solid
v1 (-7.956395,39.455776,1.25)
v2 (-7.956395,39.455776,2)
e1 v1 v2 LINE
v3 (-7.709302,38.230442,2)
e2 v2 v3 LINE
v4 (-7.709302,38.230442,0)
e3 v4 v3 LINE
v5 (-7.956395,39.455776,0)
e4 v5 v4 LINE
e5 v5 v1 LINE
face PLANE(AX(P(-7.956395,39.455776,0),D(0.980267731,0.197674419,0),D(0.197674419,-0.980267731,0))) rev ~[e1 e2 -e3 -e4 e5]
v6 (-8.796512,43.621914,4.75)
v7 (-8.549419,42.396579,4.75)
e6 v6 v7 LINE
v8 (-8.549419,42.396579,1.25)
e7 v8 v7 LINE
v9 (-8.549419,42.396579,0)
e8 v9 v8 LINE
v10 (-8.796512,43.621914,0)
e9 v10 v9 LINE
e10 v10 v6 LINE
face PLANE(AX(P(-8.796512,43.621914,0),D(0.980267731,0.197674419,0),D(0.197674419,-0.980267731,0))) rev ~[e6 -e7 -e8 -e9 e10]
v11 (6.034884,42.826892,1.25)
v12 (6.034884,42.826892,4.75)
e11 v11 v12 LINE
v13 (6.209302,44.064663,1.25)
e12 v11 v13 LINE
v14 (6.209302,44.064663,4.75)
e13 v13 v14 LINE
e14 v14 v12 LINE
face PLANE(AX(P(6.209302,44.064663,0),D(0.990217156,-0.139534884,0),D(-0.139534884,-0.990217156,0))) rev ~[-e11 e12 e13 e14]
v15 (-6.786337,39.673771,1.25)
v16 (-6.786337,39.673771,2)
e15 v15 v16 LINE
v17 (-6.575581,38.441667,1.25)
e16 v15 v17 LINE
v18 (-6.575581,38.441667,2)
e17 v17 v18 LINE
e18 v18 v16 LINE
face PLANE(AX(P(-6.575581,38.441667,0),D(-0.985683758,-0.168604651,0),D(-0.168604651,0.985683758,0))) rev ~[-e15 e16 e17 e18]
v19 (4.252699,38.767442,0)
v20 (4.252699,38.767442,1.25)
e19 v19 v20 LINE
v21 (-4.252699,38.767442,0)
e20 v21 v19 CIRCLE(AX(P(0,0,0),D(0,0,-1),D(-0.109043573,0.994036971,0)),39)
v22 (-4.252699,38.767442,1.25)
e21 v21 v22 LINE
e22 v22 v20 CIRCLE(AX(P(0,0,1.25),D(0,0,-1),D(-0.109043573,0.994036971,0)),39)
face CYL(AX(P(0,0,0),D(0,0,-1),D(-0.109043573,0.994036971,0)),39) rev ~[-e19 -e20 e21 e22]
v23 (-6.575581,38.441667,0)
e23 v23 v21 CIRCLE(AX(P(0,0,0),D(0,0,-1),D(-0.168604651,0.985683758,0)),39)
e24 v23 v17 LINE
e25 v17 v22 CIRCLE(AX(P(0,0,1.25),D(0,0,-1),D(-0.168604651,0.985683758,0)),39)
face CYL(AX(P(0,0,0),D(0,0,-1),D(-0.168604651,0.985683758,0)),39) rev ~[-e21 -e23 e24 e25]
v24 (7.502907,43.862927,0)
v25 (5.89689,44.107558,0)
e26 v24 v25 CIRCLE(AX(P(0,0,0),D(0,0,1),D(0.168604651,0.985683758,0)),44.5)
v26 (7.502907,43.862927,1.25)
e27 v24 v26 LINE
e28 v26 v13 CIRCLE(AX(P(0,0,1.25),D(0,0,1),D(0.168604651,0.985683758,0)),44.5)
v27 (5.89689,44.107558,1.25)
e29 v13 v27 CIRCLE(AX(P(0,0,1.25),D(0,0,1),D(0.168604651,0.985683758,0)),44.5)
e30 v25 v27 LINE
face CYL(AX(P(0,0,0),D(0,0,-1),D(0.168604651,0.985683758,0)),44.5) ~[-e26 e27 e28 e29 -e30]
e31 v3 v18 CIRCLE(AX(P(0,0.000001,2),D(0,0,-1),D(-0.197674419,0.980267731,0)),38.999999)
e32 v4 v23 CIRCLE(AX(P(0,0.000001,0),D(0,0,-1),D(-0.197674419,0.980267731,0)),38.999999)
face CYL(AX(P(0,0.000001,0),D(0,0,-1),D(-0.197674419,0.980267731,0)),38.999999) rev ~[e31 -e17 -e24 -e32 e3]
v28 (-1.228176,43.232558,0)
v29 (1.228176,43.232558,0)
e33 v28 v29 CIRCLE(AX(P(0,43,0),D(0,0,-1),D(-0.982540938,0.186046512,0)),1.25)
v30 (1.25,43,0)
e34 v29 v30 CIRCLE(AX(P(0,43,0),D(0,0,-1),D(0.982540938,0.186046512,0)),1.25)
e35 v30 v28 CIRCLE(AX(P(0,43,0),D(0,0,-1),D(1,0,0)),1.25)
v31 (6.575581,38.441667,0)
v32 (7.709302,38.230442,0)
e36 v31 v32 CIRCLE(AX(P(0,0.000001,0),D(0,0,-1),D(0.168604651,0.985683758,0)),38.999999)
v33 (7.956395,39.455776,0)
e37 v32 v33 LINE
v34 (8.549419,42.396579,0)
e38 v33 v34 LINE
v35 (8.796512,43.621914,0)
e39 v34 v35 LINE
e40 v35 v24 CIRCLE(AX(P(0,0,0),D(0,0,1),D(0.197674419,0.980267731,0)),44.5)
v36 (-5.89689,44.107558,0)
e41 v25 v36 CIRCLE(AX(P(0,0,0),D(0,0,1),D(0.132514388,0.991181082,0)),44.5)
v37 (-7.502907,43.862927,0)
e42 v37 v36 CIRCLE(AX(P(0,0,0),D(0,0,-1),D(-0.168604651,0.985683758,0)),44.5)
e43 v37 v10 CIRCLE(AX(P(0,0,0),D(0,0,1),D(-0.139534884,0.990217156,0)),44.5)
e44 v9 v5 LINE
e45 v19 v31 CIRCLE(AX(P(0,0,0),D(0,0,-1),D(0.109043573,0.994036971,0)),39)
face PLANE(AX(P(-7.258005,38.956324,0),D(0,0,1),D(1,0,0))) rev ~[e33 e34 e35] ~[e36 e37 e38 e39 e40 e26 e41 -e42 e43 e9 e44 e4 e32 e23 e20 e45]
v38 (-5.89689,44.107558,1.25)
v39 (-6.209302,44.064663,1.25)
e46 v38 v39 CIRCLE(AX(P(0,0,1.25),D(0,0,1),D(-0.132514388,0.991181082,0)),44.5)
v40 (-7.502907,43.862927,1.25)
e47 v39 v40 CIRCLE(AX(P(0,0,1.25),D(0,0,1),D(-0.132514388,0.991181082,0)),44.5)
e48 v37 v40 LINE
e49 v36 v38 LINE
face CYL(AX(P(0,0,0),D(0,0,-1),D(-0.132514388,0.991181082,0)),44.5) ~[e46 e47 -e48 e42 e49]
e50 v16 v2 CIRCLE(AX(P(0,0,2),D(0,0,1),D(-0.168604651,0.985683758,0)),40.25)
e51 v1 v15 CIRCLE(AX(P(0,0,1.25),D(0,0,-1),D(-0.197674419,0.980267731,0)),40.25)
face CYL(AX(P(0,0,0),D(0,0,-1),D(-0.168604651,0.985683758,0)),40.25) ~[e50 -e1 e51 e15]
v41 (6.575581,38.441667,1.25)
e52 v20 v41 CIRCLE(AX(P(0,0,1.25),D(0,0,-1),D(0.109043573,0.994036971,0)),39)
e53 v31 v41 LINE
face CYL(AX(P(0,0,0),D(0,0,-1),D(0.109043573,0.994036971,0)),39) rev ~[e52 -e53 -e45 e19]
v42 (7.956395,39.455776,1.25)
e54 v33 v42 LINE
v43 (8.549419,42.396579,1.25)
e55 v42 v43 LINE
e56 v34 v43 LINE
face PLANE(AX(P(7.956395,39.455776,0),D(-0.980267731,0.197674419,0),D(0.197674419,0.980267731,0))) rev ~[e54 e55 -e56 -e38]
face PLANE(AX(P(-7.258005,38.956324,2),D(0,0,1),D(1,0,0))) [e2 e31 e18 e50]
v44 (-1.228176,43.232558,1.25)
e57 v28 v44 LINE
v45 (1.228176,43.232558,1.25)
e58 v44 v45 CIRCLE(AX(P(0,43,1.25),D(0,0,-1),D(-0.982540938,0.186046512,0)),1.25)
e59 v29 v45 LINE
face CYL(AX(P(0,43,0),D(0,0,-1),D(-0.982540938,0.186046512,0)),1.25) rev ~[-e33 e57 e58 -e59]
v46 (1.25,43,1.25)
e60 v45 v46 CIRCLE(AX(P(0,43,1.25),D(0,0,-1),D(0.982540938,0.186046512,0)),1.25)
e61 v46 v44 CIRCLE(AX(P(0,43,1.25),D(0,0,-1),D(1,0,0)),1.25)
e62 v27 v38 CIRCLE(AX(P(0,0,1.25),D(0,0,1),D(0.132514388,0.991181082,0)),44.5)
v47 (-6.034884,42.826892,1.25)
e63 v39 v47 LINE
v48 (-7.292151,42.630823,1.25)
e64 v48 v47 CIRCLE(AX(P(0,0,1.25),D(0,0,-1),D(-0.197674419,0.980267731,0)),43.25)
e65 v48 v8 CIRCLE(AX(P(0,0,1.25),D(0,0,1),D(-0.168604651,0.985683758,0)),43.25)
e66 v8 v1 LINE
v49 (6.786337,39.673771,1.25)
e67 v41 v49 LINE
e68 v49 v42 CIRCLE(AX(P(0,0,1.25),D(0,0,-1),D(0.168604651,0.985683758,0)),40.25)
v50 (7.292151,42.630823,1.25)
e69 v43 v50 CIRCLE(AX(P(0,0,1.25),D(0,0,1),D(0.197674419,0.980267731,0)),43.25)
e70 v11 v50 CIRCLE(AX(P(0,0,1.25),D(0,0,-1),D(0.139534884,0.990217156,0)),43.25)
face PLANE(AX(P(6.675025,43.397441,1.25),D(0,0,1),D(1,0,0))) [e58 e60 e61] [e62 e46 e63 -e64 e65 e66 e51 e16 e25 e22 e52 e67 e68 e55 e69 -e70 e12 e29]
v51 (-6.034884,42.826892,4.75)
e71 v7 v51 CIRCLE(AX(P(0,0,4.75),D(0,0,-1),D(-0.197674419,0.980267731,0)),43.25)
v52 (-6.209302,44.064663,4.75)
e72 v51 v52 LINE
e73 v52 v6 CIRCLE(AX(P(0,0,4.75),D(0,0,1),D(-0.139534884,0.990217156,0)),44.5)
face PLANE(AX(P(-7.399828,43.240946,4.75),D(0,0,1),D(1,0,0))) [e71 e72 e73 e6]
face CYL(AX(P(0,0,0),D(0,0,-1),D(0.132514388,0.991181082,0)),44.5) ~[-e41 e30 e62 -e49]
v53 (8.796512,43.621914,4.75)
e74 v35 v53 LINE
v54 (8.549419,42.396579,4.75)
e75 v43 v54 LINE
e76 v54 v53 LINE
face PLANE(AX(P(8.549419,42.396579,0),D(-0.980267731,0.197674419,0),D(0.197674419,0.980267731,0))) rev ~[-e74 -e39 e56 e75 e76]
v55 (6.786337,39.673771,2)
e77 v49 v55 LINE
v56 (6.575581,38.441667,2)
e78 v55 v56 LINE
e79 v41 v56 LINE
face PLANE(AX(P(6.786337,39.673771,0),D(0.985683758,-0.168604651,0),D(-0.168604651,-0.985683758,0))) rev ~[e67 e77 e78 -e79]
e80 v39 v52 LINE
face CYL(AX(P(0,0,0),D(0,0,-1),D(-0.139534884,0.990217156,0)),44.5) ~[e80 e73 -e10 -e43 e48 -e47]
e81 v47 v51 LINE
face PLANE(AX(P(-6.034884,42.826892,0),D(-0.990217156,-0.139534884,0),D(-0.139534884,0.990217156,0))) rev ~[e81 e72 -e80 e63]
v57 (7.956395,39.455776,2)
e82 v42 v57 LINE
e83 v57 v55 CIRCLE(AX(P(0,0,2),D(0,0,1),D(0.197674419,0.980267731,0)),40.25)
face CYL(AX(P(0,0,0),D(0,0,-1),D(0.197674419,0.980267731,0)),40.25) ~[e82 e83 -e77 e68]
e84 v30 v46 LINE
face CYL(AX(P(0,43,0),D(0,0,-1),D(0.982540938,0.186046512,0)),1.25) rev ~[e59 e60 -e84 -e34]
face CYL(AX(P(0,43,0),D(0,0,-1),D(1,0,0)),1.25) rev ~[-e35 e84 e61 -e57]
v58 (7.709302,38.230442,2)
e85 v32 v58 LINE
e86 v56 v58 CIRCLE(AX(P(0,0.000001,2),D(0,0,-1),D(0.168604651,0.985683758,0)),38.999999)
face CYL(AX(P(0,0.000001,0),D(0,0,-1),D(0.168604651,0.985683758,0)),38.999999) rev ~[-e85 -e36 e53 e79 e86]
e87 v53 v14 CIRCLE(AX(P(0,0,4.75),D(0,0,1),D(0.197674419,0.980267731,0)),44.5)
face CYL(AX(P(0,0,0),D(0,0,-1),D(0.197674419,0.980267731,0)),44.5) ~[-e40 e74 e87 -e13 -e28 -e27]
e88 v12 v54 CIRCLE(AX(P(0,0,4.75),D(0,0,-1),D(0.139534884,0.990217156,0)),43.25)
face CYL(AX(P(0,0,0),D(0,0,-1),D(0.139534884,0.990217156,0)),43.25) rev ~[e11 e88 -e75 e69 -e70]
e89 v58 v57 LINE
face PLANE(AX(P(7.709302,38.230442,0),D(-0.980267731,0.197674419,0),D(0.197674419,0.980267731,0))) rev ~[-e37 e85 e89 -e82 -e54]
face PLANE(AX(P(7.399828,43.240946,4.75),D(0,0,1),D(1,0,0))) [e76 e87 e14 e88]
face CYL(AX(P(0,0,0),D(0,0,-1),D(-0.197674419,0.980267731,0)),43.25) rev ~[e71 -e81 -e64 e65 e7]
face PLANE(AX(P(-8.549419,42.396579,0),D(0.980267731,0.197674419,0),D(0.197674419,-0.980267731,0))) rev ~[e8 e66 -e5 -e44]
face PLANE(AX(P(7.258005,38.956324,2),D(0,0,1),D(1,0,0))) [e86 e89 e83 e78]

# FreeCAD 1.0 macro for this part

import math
import FreeCAD as App
import Part
import Sketcher
from FreeCAD import Vector

doc = App.newDocument("Part")
body = doc.addObject("PartDesign::Body", "Body")

# Sketch on XY plane
sketch1 = doc.addObject("Sketcher::SketchObject", "Sketch")
body.addObject(sketch1)
sketch1.AttachmentSupport = (doc.XY_Plane, [""])
sketch1.MapMode = "FlatFace"
sketch1.addGeometry([
    Part.LineSegment(Vector(7.29, 42.63, 0), Vector(7.5, 43.86, 0)),  # 0
    Part.ArcOfCircle(Part.Circle(Vector(0, 0, 0), Vector(0, 0, 1), 44.5), math.radians(80.29), math.radians(82.39)),  # 1
    Part.ArcOfCircle(Part.Circle(Vector(0, 0, 0), Vector(0, 0, 1), 44.5), math.radians(82.39), math.radians(97.61)),  # 2
    Part.ArcOfCircle(Part.Circle(Vector(0, 0, 0), Vector(0, 0, 1), 44.5), math.radians(97.61), math.radians(99.71)),  # 3
    Part.LineSegment(Vector(-7.5, 43.86, 0), Vector(-7.29, 42.63, 0)),  # 4
    Part.ArcOfCircle(Part.Circle(Vector(0, 0, 0), Vector(0, 0, 1), 43.25), math.radians(99.71), math.radians(101.4)),  # 5
    Part.LineSegment(Vector(-8.55, 42.4, 0), Vector(-7.96, 39.46, 0)),  # 6
    Part.ArcOfCircle(Part.Circle(Vector(0, 0, 0), Vector(0, 0, 1), 40.25), math.radians(99.71), math.radians(101.4)),  # 7
    Part.LineSegment(Vector(-6.79, 39.67, 0), Vector(-6.58, 38.44, 0)),  # 8
    Part.ArcOfCircle(Part.Circle(Vector(0, 0, 0), Vector(0, 0, 1), 39), math.radians(96.26), math.radians(99.71)),  # 9
    Part.ArcOfCircle(Part.Circle(Vector(0, 0, 0), Vector(0, 0, 1), 39), math.radians(83.74), math.radians(96.26)),  # 10
    Part.ArcOfCircle(Part.Circle(Vector(0, 0, 0), Vector(0, 0, 1), 39), math.radians(80.29), math.radians(83.74)),  # 11
    Part.LineSegment(Vector(6.58, 38.44, 0), Vector(6.79, 39.67, 0)),  # 12
    Part.ArcOfCircle(Part.Circle(Vector(0, 0, 0), Vector(0, 0, 1), 40.25), math.radians(78.6), math.radians(80.29)),  # 13
    Part.LineSegment(Vector(7.96, 39.46, 0), Vector(8.55, 42.4, 0)),  # 14
    Part.ArcOfCircle(Part.Circle(Vector(0, 0, 0), Vector(0, 0, 1), 43.25), math.radians(78.6), math.radians(80.29)),  # 15
    Part.ArcOfCircle(Part.Circle(Vector(0, 43, 0), Vector(0, 0, 1), 1.25), math.radians(11), math.radians(169)),  # 16
    Part.ArcOfCircle(Part.Circle(Vector(0, 43, 0), Vector(0, 0, 1), 1.25), math.radians(0), math.radians(10.72)),  # 17
    Part.ArcOfCircle(Part.Circle(Vector(0, 43, 0), Vector(0, 0, 1), 1.25), math.radians(169), math.radians(360)),  # 18
], False)
sketch1.addConstraint([
    Sketcher.Constraint("Coincident", 0, 2, 1, 1),
    Sketcher.Constraint("Tangent", 1, 2, 2, 1),
    Sketcher.Constraint("Tangent", 2, 2, 3, 1),
    Sketcher.Constraint("Coincident", 3, 2, 4, 1),
    Sketcher.Constraint("Coincident", 4, 2, 5, 1),
    Sketcher.Constraint("Coincident", 5, 2, 6, 1),
    Sketcher.Constraint("Coincident", 6, 2, 7, 2),
    Sketcher.Constraint("Coincident", 7, 1, 8, 1),
    Sketcher.Constraint("Coincident", 8, 2, 9, 2),
    Sketcher.Constraint("Tangent", 9, 1, 10, 2),
    Sketcher.Constraint("Tangent", 10, 1, 11, 2),
    Sketcher.Constraint("Coincident", 11, 1, 12, 1),
    Sketcher.Constraint("Coincident", 12, 2, 13, 2),
    Sketcher.Constraint("Coincident", 13, 1, 14, 1),
    Sketcher.Constraint("Coincident", 14, 2, 15, 1),
    Sketcher.Constraint("Coincident", 15, 2, 0, 1),
    Sketcher.Constraint("Tangent", 16, 1, 17, 2),
    Sketcher.Constraint("Tangent", 17, 1, 18, 2),
    Sketcher.Constraint("Tangent", 18, 1, 16, 2),
    Sketcher.Constraint("Coincident", 1, 3, -1, 1),
    Sketcher.Constraint("Coincident", 3, 3, -1, 1),
    Sketcher.Constraint("Coincident", 5, 3, -1, 1),
    Sketcher.Constraint("Coincident", 7, 3, -1, 1),
    Sketcher.Constraint("Coincident", 9, 3, -1, 1),
    Sketcher.Constraint("Coincident", 11, 3, -1, 1),
    Sketcher.Constraint("Coincident", 13, 3, -1, 1),
    Sketcher.Constraint("Coincident", 15, 3, -1, 1),
    Sketcher.Constraint("Equal", 7, 13),
    Sketcher.Constraint("Equal", 5, 15),
    Sketcher.Constraint("Symmetric", 16, 1, 18, 1, -2),
    Sketcher.Constraint("Parallel", 4, 8),
    Sketcher.Constraint("Parallel", 0, 12),
    Sketcher.Constraint("Horizontal", 1, 2, 2, 2),
    Sketcher.Constraint("Horizontal", 0, 2, 3, 2),
    Sketcher.Constraint("Horizontal", 9, 1, 10, 1),
    Sketcher.Constraint("Horizontal", 8, 2, 11, 1),
    Sketcher.Constraint("Horizontal", 7, 1, 12, 2),
    Sketcher.Constraint("Horizontal", 6, 2, 13, 1),
    Sketcher.Constraint("Horizontal", 5, 2, 14, 2),
    Sketcher.Constraint("Horizontal", 18, 3, 17, 1),
    Sketcher.Constraint("Equal", 4, 8),
    Sketcher.Constraint("Radius", 9, 39.0),
    Sketcher.Constraint("Radius", 1, 44.5),
    Sketcher.Constraint("Radius", 5, 43.25),
    Sketcher.Constraint("Radius", 16, 1.25),
    Sketcher.Constraint("DistanceY", -1, 1, 16, 3, 43.0),
    Sketcher.Constraint("DistanceY", 16, 1, 1, 2, 0.875),
    Sketcher.Constraint("DistanceX", 9, 1, -1, 1, 4.252699),
    Sketcher.Constraint("DistanceX", -1, 1, 1, 2, 5.89689),
    Sketcher.Constraint("DistanceX", 4, 2, -1, 1, 7.292151),
    Sketcher.Constraint("DistanceX", 5, 2, -1, 1, 8.549419),
    Sketcher.Constraint("DistanceY", -1, 1, 7, 1, 39.673771),
    Sketcher.Constraint("DistanceX", 8, 2, -1, 1, 6.575581),
    Sketcher.Constraint("DistanceX", 6, 2, 3, 2, 0.453488),
])
pad1 = doc.addObject("PartDesign::Pad", "Pad")
body.addObject(pad1)
pad1.Profile = sketch1
pad1.Length = 1.25

# Sketch on XY plane
sketch2 = doc.addObject("Sketcher::SketchObject", "Sketch001")
body.addObject(sketch2)
sketch2.AttachmentSupport = (doc.XY_Plane, [""])
sketch2.MapMode = "FlatFace"
sketch2.addGeometry([
    Part.ArcOfCircle(Part.Circle(Vector(0, 0, 0), Vector(0, 0, 1), 43.3), math.radians(78.6), math.radians(81.98)),  # 0
    Part.LineSegment(Vector(8.5, 42.4, 0), Vector(8.8, 43.6, 0)),  # 1
    Part.ArcOfCircle(Part.Circle(Vector(0, 0, 0), Vector(0, 0, 1), 44.5), math.radians(78.6), math.radians(81.98)),  # 2
    Part.LineSegment(Vector(6.2, 44.1, 0), Vector(6, 42.8, 0)),  # 3
    Part.LineSegment(Vector(-8.8, 43.6, 0), Vector(-8.5, 42.4, 0)),  # 4
    Part.ArcOfCircle(Part.Circle(Vector(0, 0, 0), Vector(0, 0, 1), 43.3), math.radians(98.02), math.radians(101.4)),  # 5
    Part.LineSegment(Vector(-6, 42.8, 0), Vector(-6.2, 44.1, 0)),  # 6
    Part.ArcOfCircle(Part.Circle(Vector(0, 0, 0), Vector(0, 0, 1), 44.5), math.radians(98.02), math.radians(101.4)),  # 7
], False)
sketch2.addConstraint([
    Sketcher.Constraint("Coincident", 0, 1, 1, 1),
    Sketcher.Constraint("Coincident", 1, 2, 2, 1),
    Sketcher.Constraint("Coincident", 2, 2, 3, 1),
    Sketcher.Constraint("Coincident", 3, 2, 0, 2),
    Sketcher.Constraint("Coincident", 4, 2, 5, 2),
    Sketcher.Constraint("Coincident", 5, 1, 6, 1),
    Sketcher.Constraint("Coincident", 6, 2, 7, 1),
    Sketcher.Constraint("Coincident", 7, 2, 4, 1),
    Sketcher.Constraint("Coincident", 0, 3, -1, 1),
    Sketcher.Constraint("Coincident", 2, 3, -1, 1),
    Sketcher.Constraint("Coincident", 5, 3, -1, 1),
    Sketcher.Constraint("Coincident", 7, 3, -1, 1),
    Sketcher.Constraint("Equal", 0, 5),
    Sketcher.Constraint("Equal", 2, 7),
    Sketcher.Constraint("Horizontal", 0, 1, 4, 2),
    Sketcher.Constraint("Horizontal", 3, 2, 5, 1),
    Sketcher.Constraint("Horizontal", 2, 2, 6, 2),
    Sketcher.Constraint("Horizontal", 1, 2, 7, 2),
    Sketcher.Constraint("Radius", 2, 44.5),
    Sketcher.Constraint("Radius", 0, 43.25),
    Sketcher.Constraint("DistanceX", -1, 1, 0, 1, 8.549419),
    Sketcher.Constraint("DistanceX", -1, 1, 1, 2, 8.796512),
    Sketcher.Constraint("DistanceX", 2, 2, 1, 2, 2.587209),
    Sketcher.Constraint("DistanceX", 3, 2, 2, 2, 0.174419),
])
pad2 = doc.addObject("PartDesign::Pad", "Pad001")
body.addObject(pad2)
pad2.Profile = sketch2
pad2.Length = 4.75

# Sketch on XY plane
sketch3 = doc.addObject("Sketcher::SketchObject", "Sketch002")
body.addObject(sketch3)
sketch3.AttachmentSupport = (doc.XY_Plane, [""])
sketch3.MapMode = "FlatFace"
sketch3.addGeometry([
    Part.LineSegment(Vector(-8, 39.5, 0), Vector(-7.7, 38.2, 0)),  # 0
    Part.ArcOfCircle(Part.Circle(Vector(0, 0, 0), Vector(0, 0, 1), 39), math.radians(99.71), math.radians(101.4)),  # 1
    Part.LineSegment(Vector(-6.6, 38.4, 0), Vector(-6.8, 39.7, 0)),  # 2
    Part.ArcOfCircle(Part.Circle(Vector(0, 0, 0), Vector(0, 0, 1), 40.3), math.radians(99.71), math.radians(101.4)),  # 3
    Part.ArcOfCircle(Part.Circle(Vector(0, 0, 0), Vector(0, 0, 1), 39), math.radians(78.6), math.radians(80.29)),  # 4
    Part.LineSegment(Vector(7.7, 38.2, 0), Vector(8, 39.5, 0)),  # 5
    Part.ArcOfCircle(Part.Circle(Vector(0, 0, 0), Vector(0, 0, 1), 40.2), math.radians(78.6), math.radians(80.29)),  # 6
    Part.LineSegment(Vector(6.8, 39.7, 0), Vector(6.6, 38.4, 0)),  # 7
], False)
sketch3.addConstraint([
    Sketcher.Constraint("Coincident", 0, 2, 1, 2),
    Sketcher.Constraint("Coincident", 1, 1, 2, 1),
    Sketcher.Constraint("Coincident", 2, 2, 3, 1),
    Sketcher.Constraint("Coincident", 3, 2, 0, 1),
    Sketcher.Constraint("Coincident", 4, 1, 5, 1),
    Sketcher.Constraint("Coincident", 5, 2, 6, 1),
    Sketcher.Constraint("Coincident", 6, 2, 7, 1),
    Sketcher.Constraint("Coincident", 7, 2, 4, 2),
    Sketcher.Constraint("Coincident", 1, 3, -1, 1),
    Sketcher.Constraint("Coincident", 3, 3, -1, 1),
    Sketcher.Constraint("Coincident", 4, 3, -1, 1),
    Sketcher.Constraint("Coincident", 6, 3, -1, 1),
    Sketcher.Constraint("Equal", 1, 4),
    Sketcher.Constraint("Equal", 3, 6),
    Sketcher.Constraint("Horizontal", 0, 2, 4, 1),
    Sketcher.Constraint("Horizontal", 3, 2, 5, 2),
    Sketcher.Constraint("Horizontal", 2, 2, 6, 2),
    Sketcher.Constraint("Horizontal", 1, 1, 7, 2),
    Sketcher.Constraint("Radius", 1, 38.999999),
    Sketcher.Constraint("Radius", 3, 40.25),
    Sketcher.Constraint("DistanceY", -1, 1, 0, 2, 38.230442),
    Sketcher.Constraint("DistanceX", 1, 1, -1, 1, 6.575581),
    Sketcher.Constraint("DistanceY", -1, 1, 2, 2, 39.673771),
    Sketcher.Constraint("DistanceX", 3, 2, 2, 2, 1.170058),
])
pad3 = doc.addObject("PartDesign::Pad", "Pad002")
body.addObject(pad3)
pad3.Profile = sketch3
pad3.Length = 2

doc.recompute()
